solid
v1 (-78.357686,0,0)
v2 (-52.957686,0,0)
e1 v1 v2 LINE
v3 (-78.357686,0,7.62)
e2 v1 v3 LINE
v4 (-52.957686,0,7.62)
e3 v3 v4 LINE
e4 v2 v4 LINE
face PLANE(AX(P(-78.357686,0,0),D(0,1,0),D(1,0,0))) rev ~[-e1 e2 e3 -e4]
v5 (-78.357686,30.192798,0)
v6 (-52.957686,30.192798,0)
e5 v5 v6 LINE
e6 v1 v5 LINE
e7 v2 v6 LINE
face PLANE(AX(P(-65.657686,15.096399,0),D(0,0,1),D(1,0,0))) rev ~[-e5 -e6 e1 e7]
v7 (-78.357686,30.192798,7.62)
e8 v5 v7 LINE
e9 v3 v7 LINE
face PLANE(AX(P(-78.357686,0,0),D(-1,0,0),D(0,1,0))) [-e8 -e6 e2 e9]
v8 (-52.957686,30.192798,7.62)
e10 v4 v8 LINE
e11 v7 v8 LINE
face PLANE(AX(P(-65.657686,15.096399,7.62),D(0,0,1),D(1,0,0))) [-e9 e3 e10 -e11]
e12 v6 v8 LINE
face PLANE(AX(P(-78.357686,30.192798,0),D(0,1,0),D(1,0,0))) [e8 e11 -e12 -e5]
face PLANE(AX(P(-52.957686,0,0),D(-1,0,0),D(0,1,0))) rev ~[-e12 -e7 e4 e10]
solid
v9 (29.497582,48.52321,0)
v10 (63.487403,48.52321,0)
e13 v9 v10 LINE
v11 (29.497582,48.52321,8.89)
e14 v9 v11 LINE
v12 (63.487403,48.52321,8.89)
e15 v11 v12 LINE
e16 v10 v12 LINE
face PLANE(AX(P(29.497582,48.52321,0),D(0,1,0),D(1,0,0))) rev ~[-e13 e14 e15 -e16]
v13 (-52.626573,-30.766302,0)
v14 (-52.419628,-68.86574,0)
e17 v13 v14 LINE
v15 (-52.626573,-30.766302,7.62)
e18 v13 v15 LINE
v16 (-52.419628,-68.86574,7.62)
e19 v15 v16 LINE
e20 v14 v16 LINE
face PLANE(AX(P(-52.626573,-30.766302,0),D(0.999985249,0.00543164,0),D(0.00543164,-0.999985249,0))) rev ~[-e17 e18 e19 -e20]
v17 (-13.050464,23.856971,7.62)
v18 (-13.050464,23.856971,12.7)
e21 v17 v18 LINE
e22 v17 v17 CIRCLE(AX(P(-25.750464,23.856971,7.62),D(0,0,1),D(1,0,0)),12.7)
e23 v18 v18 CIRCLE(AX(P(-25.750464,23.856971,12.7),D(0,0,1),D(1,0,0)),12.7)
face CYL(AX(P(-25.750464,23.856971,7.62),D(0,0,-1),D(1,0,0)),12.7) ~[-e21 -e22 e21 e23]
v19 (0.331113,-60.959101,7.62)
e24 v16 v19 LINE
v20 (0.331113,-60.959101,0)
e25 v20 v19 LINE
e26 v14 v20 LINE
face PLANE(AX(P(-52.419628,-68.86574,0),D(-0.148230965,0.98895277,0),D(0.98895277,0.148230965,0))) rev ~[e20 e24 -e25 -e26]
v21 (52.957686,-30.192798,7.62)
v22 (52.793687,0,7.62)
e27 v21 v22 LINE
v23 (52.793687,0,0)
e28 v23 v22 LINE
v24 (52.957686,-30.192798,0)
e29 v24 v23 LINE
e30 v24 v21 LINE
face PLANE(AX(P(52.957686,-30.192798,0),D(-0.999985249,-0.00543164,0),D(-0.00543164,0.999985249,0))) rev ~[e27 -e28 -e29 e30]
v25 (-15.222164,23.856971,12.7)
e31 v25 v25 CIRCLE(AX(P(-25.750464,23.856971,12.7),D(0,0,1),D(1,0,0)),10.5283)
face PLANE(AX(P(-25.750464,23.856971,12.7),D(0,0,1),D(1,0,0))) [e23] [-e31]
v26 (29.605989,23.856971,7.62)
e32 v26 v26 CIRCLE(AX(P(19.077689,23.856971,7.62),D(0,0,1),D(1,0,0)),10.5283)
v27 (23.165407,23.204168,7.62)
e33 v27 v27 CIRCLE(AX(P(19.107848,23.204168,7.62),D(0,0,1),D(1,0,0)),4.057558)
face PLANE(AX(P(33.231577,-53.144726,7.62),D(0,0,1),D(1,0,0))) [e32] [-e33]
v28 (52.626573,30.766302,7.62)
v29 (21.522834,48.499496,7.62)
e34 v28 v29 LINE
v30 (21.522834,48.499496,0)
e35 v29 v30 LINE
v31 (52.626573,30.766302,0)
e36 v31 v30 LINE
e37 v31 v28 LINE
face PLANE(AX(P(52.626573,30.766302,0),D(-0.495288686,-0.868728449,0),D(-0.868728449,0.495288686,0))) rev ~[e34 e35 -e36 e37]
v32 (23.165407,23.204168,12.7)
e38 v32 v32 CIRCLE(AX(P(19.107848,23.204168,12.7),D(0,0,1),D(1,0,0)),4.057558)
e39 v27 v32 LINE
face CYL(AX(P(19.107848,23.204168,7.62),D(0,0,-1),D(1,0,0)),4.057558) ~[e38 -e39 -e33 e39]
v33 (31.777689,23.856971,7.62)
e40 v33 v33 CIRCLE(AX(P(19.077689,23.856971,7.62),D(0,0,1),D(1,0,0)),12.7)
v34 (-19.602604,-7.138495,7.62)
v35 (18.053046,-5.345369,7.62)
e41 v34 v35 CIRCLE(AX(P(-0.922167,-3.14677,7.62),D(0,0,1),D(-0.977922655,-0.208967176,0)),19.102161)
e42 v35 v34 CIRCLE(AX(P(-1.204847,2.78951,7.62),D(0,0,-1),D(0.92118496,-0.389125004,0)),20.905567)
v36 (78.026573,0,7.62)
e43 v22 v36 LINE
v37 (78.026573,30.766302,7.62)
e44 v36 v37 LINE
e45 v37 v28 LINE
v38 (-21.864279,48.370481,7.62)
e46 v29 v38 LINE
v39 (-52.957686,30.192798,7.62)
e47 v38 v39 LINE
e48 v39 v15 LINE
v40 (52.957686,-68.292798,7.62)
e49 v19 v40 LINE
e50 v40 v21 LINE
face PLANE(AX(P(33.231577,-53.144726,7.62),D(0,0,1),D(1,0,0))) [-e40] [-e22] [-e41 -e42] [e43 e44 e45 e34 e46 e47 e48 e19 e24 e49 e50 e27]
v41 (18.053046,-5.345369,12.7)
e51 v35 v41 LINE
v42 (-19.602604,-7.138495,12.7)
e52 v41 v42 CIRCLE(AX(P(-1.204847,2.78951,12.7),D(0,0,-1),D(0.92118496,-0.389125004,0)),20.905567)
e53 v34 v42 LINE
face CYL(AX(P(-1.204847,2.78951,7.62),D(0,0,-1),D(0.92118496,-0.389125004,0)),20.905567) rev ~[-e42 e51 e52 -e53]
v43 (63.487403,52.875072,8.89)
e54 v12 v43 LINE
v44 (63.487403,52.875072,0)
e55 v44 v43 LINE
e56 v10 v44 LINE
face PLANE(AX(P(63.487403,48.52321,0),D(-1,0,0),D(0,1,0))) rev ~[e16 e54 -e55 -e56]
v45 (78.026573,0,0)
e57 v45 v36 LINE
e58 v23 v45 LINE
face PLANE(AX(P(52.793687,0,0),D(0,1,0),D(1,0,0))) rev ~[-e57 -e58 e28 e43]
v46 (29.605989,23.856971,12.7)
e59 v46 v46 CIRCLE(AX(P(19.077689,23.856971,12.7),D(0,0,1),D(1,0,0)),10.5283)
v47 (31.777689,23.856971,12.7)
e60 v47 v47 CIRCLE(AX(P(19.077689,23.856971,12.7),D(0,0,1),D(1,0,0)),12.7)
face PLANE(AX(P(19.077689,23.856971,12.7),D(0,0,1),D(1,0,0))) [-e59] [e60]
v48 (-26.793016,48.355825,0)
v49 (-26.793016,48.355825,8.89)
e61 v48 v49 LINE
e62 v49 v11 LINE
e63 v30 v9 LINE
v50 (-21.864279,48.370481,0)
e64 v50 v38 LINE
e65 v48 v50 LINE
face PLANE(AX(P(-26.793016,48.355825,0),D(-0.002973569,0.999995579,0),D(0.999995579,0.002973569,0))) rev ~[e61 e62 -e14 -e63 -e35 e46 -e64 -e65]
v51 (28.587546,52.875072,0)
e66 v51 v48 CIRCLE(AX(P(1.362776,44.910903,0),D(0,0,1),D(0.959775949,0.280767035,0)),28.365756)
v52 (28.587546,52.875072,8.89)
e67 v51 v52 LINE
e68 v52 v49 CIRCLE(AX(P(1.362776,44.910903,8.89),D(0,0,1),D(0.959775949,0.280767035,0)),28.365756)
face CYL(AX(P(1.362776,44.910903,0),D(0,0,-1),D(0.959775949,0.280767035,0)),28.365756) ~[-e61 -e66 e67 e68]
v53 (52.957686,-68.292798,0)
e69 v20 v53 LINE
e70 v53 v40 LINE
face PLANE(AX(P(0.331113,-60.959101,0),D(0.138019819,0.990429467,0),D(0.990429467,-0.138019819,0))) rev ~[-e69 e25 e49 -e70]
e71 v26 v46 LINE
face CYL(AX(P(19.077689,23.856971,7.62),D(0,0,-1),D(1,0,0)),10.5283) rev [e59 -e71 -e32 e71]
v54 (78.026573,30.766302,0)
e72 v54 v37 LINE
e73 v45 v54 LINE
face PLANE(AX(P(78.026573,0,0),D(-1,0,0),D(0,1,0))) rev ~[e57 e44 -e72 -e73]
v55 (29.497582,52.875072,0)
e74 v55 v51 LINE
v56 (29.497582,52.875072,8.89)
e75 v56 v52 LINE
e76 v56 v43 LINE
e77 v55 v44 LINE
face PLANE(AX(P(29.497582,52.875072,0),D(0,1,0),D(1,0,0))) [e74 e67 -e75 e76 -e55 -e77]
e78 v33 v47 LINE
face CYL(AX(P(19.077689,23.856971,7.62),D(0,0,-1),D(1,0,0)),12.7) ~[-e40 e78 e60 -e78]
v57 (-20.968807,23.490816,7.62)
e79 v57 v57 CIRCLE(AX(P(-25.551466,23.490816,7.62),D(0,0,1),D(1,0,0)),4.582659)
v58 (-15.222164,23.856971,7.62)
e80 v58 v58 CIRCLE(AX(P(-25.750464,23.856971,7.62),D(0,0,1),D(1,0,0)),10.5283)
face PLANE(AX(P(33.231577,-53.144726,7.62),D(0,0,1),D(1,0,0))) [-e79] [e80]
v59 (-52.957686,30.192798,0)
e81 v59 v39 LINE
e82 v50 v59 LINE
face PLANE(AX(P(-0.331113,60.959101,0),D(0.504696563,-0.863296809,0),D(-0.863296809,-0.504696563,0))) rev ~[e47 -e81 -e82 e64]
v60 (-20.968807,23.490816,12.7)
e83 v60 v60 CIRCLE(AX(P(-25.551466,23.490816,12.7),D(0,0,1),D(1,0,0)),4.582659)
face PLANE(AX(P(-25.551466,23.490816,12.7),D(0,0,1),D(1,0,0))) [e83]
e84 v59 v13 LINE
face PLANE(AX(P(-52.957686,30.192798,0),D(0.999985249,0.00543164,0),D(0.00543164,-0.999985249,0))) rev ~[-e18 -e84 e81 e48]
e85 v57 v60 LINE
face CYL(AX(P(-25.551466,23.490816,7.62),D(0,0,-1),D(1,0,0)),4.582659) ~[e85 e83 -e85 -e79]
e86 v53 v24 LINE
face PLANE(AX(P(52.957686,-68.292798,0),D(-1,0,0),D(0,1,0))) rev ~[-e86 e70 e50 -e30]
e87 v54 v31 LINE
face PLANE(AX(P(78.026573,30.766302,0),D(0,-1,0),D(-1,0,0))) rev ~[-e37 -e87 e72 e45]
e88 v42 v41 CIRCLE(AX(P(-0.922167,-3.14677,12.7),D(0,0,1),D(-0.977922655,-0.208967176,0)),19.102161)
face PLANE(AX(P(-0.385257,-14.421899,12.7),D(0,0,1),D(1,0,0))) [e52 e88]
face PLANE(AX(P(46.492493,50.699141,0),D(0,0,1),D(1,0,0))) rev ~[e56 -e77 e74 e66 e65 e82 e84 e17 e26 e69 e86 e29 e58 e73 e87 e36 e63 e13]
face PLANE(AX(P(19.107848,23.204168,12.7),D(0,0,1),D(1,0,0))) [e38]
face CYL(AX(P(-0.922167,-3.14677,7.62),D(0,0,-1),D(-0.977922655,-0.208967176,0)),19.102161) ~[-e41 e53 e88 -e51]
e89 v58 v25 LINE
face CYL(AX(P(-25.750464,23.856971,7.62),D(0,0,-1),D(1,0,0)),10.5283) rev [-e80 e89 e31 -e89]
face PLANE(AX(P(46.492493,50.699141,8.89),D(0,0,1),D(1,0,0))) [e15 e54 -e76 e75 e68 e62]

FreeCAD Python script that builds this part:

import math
import FreeCAD as App
import Part
import Sketcher
from FreeCAD import Vector
Q = App.Units.Quantity

doc = App.newDocument("Part")
body = doc.addObject("PartDesign::Body", "Body")

sketch1 = body.newObject("Sketcher::SketchObject", "Sketch")
sketch1.AttachmentSupport = (doc.getObject("XY_Plane"), [""])
sketch1.MapMode = "FlatFace"
sketch1.addGeometry([
    Part.LineSegment(Vector(0.331113, -60.959101, 0), Vector(52.957686, -68.292798, 0)),
    Part.LineSegment(Vector(52.957686, -68.292798, 0), Vector(52.957686, -30.192798, 0)),
    Part.LineSegment(Vector(52.957686, -30.192798, 0), Vector(52.793687, 0, 0)),
    Part.LineSegment(Vector(52.793687, 0, 0), Vector(78.026573, 0, 0)),
    Part.LineSegment(Vector(78.026573, 0, 0), Vector(78.026573, 30.766302, 0)),
    Part.LineSegment(Vector(78.026573, 30.766302, 0), Vector(52.626573, 30.766302, 0)),
    Part.LineSegment(Vector(52.626573, 30.766302, 0), Vector(-0.331113, 60.959101, 0)),
    Part.LineSegment(Vector(-0.331113, 60.959101, 0), Vector(-52.957686, 30.192798, 0)),
    Part.LineSegment(Vector(-52.957686, 30.192798, 0), Vector(-52.626573, -30.766302, 0)),
    Part.LineSegment(Vector(-52.626573, -30.766302, 0), Vector(-52.419628, -68.86574, 0)),
    Part.LineSegment(Vector(-52.419628, -68.86574, 0), Vector(0.331113, -60.959101, 0)),
], False)
sketch1.addConstraint([
    Sketcher.Constraint("Coincident", 0, 2, 1, 1),
    Sketcher.Constraint("Coincident", 1, 2, 2, 1),
    Sketcher.Constraint("Coincident", 2, 2, 3, 1),
    Sketcher.Constraint("Coincident", 3, 2, 4, 1),
    Sketcher.Constraint("Coincident", 4, 2, 5, 1),
    Sketcher.Constraint("Coincident", 5, 2, 6, 1),
    Sketcher.Constraint("Coincident", 6, 2, 7, 1),
    Sketcher.Constraint("Coincident", 7, 2, 8, 1),
    Sketcher.Constraint("Coincident", 8, 2, 9, 1),
    Sketcher.Constraint("Coincident", 9, 2, 10, 1),
    Sketcher.Constraint("Coincident", 10, 2, 0, 1),
    Sketcher.Constraint("Vertical", 1),
    Sketcher.Constraint("Horizontal", 3),
    Sketcher.Constraint("Vertical", 4),
    Sketcher.Constraint("Horizontal", 5),
    Sketcher.Constraint("Symmetric", 1, 2, 7, 2, -1, 1),
    Sketcher.Constraint("Symmetric", 5, 2, 8, 2, -1, 1),
    Sketcher.Constraint("Symmetric", 6, 2, 10, 2, -1, 1),
    Sketcher.Constraint("PointOnObject", 2, 2, -1),
    Sketcher.Constraint("Parallel", 2, 8),
    Sketcher.Constraint("Parallel", 8, 9),
    Sketcher.Constraint("Equal", 6, 7),
    Sketcher.Constraint("Equal", 7, 8),
    Sketcher.Constraint("DistanceX", 5, 2, 5, 1, Q("1 in")),
    Sketcher.Constraint("DistanceY", 1, 1, 1, 2, Q("1.5 in")),
    Sketcher.Constraint("Distance", 6, Q("2.4 in")),
    Sketcher.Constraint("Distance", 9, Q("1.5 in")),
    Sketcher.Constraint("Distance", 10, Q("2.1 in")),
    Sketcher.Constraint("DistanceY", 0, 2, -1, 1, 68.292798),
    Sketcher.Constraint("DistanceY", -1, 1, 6, 2, 60.959101),
])
pad1 = body.newObject("PartDesign::Pad", "Pad")
pad1.Profile = sketch1
pad1.Length = Q("0.3 in")

sketch2 = body.newObject("Sketcher::SketchObject", "Sketch001")
sketch2.AttachmentSupport = (doc.getObject("XY_Plane"), [""])
sketch2.MapMode = "FlatFace"
sketch2.AttachmentOffset = App.Placement(Vector(0, 0, 0.3 * 25.4), App.Rotation())
sketch2.addGeometry(Part.Circle(Vector(19.107848, 23.204168, 0), Vector(0, 0, 1), 4.057558), False)
sketch2.addConstraint([
    Sketcher.Constraint("Diameter", 0, 8.115117),
    Sketcher.Constraint("DistanceX", -1, 1, 0, 3, 19.107848),
    Sketcher.Constraint("DistanceY", -1, 1, 0, 3, 23.204168),
])
pad2 = body.newObject("PartDesign::Pad", "Pad001")
pad2.Profile = sketch2
pad2.Length = Q("0.2 in")

sketch3 = body.newObject("Sketcher::SketchObject", "Sketch002")
sketch3.AttachmentSupport = (doc.getObject("XY_Plane"), [""])
sketch3.MapMode = "FlatFace"
sketch3.AttachmentOffset = App.Placement(Vector(0, 0, 0.3 * 25.4), App.Rotation())
sketch3.addGeometry(Part.Circle(Vector(-25.551466, 23.490816, 0), Vector(0, 0, 1), 4.582659), False)
sketch3.addConstraint([
    Sketcher.Constraint("Diameter", 0, 9.165318),
    Sketcher.Constraint("DistanceX", 0, 3, -1, 1, 25.551466),
    Sketcher.Constraint("DistanceY", -1, 1, 0, 3, 23.490816),
])
pad3 = body.newObject("PartDesign::Pad", "Pad002")
pad3.Profile = sketch3
pad3.Length = Q("0.2 in")

sketch4 = body.newObject("Sketcher::SketchObject", "Sketch003")
sketch4.AttachmentSupport = (doc.getObject("XY_Plane"), [""])
sketch4.MapMode = "FlatFace"
sketch4.AttachmentOffset = App.Placement(Vector(0, 0, 0.3 * 25.4), App.Rotation())
sketch4.addGeometry([
    Part.Circle(Vector(-25.750464, 23.856971, 0), Vector(0, 0, 1), 12.7),
    Part.Circle(Vector(-25.750464, 23.856971, 0), Vector(0, 0, 1), 10.5283),
    Part.Circle(Vector(19.077689, 23.856971, 0), Vector(0, 0, 1), 12.7),
    Part.Circle(Vector(19.077689, 23.856971, 0), Vector(0, 0, 1), 10.5283),
    Part.ArcOfCircle(Part.Circle(Vector(-1.204847, 2.78951, 0), Vector(0, 0, 1), 20.905567), math.radians(-151.647314), math.radians(-22.900066)),
    Part.ArcOfCircle(Part.Circle(Vector(-0.922167, -3.14677, 0), Vector(0, 0, 1), 19.102161), math.radians(-167.938167), math.radians(-6.609212)),
], False)
sketch4.addConstraint([
    Sketcher.Constraint("Coincident", 4, 1, 5, 1),
    Sketcher.Constraint("Coincident", 5, 2, 4, 2),
    Sketcher.Constraint("Coincident", 1, 3, 0, 3),
    Sketcher.Constraint("Coincident", 3, 3, 2, 3),
    Sketcher.Constraint("Equal", 0, 2),
    Sketcher.Constraint("Equal", 1, 3),
    Sketcher.Constraint("Horizontal", 1, 3, 2, 3),
    Sketcher.Constraint("Diameter", 0, Q("1 in")),
    Sketcher.Constraint("Diameter", 1, Q("0.829 in")),
    Sketcher.Constraint("Radius", 5, 19.102161),
    Sketcher.Constraint("Radius", 4, 20.905567),
    Sketcher.Constraint("DistanceY", 5, 2, 5, 3, 2.198599),
    Sketcher.Constraint("DistanceY", -1, 1, 0, 3, 23.856971),
    Sketcher.Constraint("DistanceX", -1, 1, 2, 3, 19.077689),
    Sketcher.Constraint("DistanceY", -1, 1, 4, 3, 2.78951),
    Sketcher.Constraint("DistanceY", 5, 3, -1, 1, 3.14677),
    Sketcher.Constraint("DistanceX", 0, 3, 4, 1, 6.14786),
    Sketcher.Constraint("DistanceX", 0, 3, -1, 1, 25.750464),
])
pad4 = body.newObject("PartDesign::Pad", "Pad003")
pad4.Profile = sketch4
pad4.Length = Q("0.2 in")

sketch5 = body.newObject("Sketcher::SketchObject", "Sketch004")
sketch5.AttachmentSupport = (doc.getObject("XY_Plane"), [""])
sketch5.MapMode = "FlatFace"
sketch5.addGeometry([
    Part.LineSegment(Vector(29.497582, 48.52321, 0), Vector(63.487403, 48.52321, 0)),
    Part.LineSegment(Vector(63.487403, 48.52321, 0), Vector(63.487403, 52.875072, 0)),
    Part.LineSegment(Vector(63.487403, 52.875072, 0), Vector(29.497582, 52.875072, 0)),
    Part.LineSegment(Vector(29.497582, 52.875072, 0), Vector(28.587546, 52.875072, 0)),
    Part.ArcOfCircle(Part.Circle(Vector(1.362776, 44.910903, 0), Vector(0, 0, 1), 28.365756), math.radians(16.305989), math.radians(173.024407)),
    Part.LineSegment(Vector(-26.793016, 48.355825, 0), Vector(29.497582, 48.52321, 0)),
], False)
sketch5.addConstraint([
    Sketcher.Constraint("Coincident", 0, 2, 1, 1),
    Sketcher.Constraint("Coincident", 1, 2, 2, 1),
    Sketcher.Constraint("Coincident", 2, 2, 3, 1),
    Sketcher.Constraint("Coincident", 3, 2, 4, 1),
    Sketcher.Constraint("Coincident", 4, 2, 5, 1),
    Sketcher.Constraint("Coincident", 5, 2, 0, 1),
    Sketcher.Constraint("Horizontal", 0),
    Sketcher.Constraint("Vertical", 1),
    Sketcher.Constraint("Horizontal", 2),
    Sketcher.Constraint("Horizontal", 3),
    Sketcher.Constraint("Vertical", 2, 2, 5, 2),
    Sketcher.Constraint("Radius", 4, 28.365756),
    Sketcher.Constraint("DistanceX", 0, 1, 0, 2, 33.989821),
    Sketcher.Constraint("DistanceY", 1, 1, 1, 2, 4.351862),
    Sketcher.Constraint("DistanceX", 4, 2, 2, 2, 56.290599),
    Sketcher.Constraint("DistanceX", 3, 2, 3, 1, 0.910036),
    Sketcher.Constraint("DistanceY", -1, 1, 0, 2, 48.52321),
    Sketcher.Constraint("DistanceY", 4, 3, 1, 2, 7.964169),
    Sketcher.Constraint("DistanceX", -1, 1, 4, 3, 1.362776),
])
pad5 = body.newObject("PartDesign::Pad", "Pad004")
pad5.Profile = sketch5
pad5.Length = Q("0.35 in")
body2 = doc.addObject("PartDesign::Body", "Body001")

sketch6 = body2.newObject("Sketcher::SketchObject", "Sketch005")
sketch6.AttachmentSupport = (doc.getObject("XY_Plane001"), [""])
sketch6.MapMode = "FlatFace"
sketch6.addGeometry([
    Part.LineSegment(Vector(-78.357686, 30.192798, 0), Vector(-78.357686, 0, 0)),
    Part.LineSegment(Vector(-78.357686, 0, 0), Vector(-52.957686, 0, 0)),
    Part.LineSegment(Vector(-52.957686, 0, 0), Vector(-52.957686, 30.192798, 0)),
    Part.LineSegment(Vector(-52.957686, 30.192798, 0), Vector(-78.357686, 30.192798, 0)),
], False)
sketch6.addConstraint([
    Sketcher.Constraint("Coincident", 0, 2, 1, 1),
    Sketcher.Constraint("Coincident", 1, 2, 2, 1),
    Sketcher.Constraint("Coincident", 2, 2, 3, 1),
    Sketcher.Constraint("Coincident", 3, 2, 0, 1),
    Sketcher.Constraint("Vertical", 0),
    Sketcher.Constraint("Horizontal", 1),
    Sketcher.Constraint("Vertical", 2),
    Sketcher.Constraint("Horizontal", 3),
    Sketcher.Constraint("PointOnObject", 0, 2, -1),
    Sketcher.Constraint("DistanceX", 1, 1, 1, 2, Q("1 in")),
    Sketcher.Constraint("DistanceY", 0, 2, 0, 1, 30.192798),
    Sketcher.Constraint("DistanceX", 0, 2, -1, 1, 78.357686),
])
pad6 = body2.newObject("PartDesign::Pad", "Pad005")
pad6.Profile = sketch6
pad6.Length = Q("0.3 in")

doc.recompute()
